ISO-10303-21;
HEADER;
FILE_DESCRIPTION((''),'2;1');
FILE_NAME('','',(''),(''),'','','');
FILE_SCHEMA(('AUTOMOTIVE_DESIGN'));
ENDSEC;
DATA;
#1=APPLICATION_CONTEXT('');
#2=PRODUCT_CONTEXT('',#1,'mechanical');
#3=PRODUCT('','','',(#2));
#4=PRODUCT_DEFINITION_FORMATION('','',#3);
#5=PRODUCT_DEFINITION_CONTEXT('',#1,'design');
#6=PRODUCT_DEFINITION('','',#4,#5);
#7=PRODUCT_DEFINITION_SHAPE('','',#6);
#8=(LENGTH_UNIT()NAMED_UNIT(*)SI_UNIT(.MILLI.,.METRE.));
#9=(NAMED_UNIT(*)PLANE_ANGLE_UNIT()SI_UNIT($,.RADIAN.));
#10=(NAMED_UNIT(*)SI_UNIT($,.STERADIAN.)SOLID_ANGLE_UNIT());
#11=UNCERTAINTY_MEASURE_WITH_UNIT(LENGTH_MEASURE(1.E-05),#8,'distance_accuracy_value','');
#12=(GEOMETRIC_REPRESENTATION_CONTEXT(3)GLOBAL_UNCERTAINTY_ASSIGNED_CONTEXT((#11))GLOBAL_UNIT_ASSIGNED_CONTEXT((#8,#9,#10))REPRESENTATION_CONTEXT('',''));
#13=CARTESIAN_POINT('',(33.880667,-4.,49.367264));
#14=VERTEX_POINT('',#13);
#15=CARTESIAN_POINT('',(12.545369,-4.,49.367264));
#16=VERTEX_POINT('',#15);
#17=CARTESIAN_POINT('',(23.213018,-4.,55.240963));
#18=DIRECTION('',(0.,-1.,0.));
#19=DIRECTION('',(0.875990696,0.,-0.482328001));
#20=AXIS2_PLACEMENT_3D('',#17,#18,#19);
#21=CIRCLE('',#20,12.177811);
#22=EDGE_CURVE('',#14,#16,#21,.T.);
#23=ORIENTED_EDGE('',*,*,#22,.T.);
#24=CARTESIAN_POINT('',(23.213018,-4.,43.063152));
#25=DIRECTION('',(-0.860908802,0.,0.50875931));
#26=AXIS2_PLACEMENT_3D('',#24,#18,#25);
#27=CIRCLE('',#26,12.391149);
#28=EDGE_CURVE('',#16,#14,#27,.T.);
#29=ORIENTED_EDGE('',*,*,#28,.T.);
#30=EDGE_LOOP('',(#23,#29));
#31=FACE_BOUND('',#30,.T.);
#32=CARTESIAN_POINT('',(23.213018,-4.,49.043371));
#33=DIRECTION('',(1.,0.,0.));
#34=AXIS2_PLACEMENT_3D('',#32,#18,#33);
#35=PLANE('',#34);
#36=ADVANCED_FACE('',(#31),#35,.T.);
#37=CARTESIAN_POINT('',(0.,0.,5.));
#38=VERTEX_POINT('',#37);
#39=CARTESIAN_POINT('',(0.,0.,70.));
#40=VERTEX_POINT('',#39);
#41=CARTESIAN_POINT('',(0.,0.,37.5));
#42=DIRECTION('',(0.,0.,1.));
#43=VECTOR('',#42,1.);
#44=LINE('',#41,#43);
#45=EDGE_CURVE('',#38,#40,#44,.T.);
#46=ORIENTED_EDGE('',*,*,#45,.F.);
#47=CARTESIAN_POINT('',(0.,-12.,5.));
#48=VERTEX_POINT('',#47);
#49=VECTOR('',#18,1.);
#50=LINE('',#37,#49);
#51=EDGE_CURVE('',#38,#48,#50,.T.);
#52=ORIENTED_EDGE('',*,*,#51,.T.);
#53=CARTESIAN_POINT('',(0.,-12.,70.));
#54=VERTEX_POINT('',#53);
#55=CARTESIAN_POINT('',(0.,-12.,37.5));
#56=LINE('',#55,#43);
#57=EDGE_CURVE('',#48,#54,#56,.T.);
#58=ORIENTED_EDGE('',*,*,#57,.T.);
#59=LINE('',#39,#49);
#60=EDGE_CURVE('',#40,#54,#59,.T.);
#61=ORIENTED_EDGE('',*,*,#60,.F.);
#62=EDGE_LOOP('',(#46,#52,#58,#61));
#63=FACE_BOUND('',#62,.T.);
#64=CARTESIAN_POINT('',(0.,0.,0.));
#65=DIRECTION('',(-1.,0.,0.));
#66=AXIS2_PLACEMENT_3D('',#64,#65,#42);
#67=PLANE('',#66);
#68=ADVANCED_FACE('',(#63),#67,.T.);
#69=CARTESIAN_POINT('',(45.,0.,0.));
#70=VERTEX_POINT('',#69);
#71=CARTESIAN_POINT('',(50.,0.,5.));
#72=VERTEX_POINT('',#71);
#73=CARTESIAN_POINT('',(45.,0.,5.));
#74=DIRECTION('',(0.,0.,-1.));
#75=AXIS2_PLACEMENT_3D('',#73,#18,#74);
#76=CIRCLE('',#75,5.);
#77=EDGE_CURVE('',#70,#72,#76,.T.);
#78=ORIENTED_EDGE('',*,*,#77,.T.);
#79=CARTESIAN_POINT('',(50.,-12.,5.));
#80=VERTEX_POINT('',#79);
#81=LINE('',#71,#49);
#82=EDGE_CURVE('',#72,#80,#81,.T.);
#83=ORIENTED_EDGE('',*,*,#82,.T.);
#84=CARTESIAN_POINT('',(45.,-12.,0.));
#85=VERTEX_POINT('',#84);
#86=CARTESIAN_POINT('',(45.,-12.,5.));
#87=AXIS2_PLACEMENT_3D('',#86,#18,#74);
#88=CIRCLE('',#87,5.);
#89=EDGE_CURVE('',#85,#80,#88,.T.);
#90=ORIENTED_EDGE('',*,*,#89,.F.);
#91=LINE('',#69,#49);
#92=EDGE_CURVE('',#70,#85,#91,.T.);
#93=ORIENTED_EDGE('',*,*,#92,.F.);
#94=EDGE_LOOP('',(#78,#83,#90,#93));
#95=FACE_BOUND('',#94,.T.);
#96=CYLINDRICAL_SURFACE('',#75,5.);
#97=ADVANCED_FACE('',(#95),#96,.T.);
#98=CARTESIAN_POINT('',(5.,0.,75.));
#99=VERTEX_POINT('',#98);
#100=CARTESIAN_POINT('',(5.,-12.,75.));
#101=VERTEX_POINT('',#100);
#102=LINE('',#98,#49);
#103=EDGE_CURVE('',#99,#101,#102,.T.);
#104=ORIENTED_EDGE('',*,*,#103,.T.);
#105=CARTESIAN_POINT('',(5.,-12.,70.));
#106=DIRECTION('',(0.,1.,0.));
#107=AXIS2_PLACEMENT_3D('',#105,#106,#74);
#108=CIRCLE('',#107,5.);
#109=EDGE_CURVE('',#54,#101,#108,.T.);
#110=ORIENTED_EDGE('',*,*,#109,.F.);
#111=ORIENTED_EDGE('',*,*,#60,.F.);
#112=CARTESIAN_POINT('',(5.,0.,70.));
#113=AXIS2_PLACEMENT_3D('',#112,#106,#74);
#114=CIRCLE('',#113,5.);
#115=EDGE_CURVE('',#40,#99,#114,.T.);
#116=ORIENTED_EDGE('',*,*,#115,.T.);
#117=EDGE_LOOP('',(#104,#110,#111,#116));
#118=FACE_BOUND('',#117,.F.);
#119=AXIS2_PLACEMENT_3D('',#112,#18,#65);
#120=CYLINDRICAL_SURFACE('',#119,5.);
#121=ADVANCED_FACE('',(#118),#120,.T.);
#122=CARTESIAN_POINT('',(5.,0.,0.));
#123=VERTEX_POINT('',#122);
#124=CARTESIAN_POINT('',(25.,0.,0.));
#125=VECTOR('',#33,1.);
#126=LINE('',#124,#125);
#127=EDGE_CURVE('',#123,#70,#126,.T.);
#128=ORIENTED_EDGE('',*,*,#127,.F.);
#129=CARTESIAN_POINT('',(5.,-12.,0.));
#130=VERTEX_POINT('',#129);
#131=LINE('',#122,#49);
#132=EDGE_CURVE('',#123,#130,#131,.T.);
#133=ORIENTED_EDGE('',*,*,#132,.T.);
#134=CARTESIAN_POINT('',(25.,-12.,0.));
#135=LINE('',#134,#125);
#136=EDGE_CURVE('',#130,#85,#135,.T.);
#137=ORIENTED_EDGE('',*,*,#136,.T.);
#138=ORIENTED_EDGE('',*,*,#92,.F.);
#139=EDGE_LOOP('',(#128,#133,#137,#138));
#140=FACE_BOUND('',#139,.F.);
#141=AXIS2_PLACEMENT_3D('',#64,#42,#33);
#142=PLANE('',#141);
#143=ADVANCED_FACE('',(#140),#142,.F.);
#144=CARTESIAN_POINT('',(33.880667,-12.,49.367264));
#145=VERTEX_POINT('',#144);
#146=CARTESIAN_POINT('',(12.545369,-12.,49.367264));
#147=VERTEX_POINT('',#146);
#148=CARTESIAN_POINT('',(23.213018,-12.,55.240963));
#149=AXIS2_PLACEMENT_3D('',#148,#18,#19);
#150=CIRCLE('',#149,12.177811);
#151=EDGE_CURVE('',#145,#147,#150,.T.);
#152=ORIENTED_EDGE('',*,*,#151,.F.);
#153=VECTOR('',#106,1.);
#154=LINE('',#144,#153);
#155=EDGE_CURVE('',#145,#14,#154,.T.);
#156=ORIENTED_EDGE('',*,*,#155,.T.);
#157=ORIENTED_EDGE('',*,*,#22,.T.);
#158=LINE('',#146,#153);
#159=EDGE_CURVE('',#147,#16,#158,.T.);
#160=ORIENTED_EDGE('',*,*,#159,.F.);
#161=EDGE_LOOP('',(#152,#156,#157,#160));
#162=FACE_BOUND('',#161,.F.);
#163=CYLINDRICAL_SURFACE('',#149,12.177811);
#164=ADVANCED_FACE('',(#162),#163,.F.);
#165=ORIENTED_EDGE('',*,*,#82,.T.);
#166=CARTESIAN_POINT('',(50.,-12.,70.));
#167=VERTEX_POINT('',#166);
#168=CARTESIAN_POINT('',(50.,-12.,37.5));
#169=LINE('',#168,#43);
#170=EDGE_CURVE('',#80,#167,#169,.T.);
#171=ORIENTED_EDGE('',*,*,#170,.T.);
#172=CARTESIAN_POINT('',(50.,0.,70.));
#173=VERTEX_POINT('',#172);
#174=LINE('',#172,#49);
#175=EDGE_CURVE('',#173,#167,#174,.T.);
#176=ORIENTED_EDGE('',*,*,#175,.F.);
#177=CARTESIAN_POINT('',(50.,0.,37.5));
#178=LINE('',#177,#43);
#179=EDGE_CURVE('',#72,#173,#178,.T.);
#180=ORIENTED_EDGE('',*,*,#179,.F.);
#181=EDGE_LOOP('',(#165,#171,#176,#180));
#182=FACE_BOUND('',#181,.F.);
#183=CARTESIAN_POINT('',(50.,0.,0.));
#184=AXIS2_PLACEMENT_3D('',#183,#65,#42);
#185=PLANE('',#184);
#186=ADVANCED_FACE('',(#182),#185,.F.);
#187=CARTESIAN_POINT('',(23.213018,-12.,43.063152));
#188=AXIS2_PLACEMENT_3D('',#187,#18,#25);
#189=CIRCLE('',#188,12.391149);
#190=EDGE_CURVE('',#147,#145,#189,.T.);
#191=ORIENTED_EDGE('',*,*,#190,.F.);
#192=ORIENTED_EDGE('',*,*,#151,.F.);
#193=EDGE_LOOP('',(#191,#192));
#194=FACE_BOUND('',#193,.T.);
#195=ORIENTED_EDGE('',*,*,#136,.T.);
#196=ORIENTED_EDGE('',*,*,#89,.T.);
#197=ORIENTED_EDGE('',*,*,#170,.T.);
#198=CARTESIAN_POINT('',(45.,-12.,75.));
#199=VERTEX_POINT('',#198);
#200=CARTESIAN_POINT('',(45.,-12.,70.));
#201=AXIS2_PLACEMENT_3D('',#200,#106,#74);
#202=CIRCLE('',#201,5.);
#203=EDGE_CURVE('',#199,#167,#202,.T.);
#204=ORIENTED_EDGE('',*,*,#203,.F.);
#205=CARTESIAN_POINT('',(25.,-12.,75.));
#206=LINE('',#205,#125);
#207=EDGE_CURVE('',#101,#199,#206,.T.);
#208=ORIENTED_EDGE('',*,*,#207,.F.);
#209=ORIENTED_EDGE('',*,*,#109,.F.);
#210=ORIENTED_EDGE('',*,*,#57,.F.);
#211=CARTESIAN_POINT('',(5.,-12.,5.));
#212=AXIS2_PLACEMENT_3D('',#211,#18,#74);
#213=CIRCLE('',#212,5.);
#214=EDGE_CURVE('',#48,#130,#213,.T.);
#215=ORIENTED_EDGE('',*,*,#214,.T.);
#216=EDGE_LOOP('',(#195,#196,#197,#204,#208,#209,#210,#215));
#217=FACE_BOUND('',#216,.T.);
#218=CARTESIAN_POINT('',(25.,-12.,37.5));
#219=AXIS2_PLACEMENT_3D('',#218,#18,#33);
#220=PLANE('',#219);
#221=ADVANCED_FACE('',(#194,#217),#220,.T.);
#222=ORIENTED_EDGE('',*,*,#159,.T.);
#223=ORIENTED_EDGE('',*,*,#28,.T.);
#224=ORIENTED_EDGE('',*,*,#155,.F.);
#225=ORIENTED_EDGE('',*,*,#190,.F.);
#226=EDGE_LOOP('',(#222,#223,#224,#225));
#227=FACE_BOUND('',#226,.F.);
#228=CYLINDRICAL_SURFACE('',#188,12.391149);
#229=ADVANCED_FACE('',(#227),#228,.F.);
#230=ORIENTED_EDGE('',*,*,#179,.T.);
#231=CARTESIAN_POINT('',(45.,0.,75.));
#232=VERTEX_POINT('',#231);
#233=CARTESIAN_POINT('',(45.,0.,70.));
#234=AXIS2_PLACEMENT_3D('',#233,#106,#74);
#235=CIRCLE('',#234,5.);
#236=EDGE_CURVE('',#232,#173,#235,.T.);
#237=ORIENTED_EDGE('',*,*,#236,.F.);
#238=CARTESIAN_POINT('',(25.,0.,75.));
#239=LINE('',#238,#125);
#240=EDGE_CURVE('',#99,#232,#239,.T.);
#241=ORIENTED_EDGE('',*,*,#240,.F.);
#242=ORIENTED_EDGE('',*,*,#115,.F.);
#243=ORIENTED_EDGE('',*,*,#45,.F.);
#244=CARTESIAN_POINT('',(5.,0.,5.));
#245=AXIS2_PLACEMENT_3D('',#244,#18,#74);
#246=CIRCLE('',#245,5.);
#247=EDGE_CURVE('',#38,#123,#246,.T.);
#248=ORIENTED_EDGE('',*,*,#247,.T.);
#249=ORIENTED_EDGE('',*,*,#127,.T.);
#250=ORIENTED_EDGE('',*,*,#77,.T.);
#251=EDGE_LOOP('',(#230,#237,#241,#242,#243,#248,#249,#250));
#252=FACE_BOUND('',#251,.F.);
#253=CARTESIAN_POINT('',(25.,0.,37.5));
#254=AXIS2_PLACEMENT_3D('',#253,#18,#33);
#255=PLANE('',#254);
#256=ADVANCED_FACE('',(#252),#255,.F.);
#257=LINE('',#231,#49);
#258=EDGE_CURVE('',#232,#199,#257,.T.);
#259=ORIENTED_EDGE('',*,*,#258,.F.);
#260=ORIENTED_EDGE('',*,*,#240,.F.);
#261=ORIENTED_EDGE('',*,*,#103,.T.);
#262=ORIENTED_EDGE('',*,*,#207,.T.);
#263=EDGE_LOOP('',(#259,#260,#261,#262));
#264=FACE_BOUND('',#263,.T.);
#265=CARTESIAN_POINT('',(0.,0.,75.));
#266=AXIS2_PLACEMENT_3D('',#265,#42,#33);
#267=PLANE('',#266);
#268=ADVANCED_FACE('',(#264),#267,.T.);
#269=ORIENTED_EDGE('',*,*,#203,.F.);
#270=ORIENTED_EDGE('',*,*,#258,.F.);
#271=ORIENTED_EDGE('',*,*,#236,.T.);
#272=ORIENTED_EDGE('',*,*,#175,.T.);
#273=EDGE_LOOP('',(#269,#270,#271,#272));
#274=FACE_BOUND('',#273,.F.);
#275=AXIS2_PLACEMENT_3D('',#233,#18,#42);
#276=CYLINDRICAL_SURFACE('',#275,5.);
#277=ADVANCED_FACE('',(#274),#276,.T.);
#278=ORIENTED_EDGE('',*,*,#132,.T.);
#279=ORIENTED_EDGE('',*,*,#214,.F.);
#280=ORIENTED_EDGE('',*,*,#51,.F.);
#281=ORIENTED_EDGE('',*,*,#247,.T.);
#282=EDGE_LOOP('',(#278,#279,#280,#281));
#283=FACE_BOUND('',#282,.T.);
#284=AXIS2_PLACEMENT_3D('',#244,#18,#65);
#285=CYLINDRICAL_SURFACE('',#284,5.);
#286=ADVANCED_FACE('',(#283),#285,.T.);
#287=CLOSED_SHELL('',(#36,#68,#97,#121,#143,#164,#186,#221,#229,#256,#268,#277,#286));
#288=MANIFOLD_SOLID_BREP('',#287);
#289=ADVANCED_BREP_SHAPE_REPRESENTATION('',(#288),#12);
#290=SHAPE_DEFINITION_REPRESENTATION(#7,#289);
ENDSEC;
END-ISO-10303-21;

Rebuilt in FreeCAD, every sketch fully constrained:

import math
import FreeCAD as App
import Part
import Sketcher

V = App.Vector


def edges_at(feature, points):
    """Names of the edges that pass closest to the given points."""
    edges = feature.Shape.Edges
    near = lambda p: min(range(len(edges)), key=lambda i: edges[i].distToShape(Part.Vertex(*p))[0])
    return sorted({f"Edge{near(p) + 1}" for p in points})


def add_polygon(sketch, points):
    """Adds a closed chain of lines whose ends are joined by coincident constraints."""
    first, n = sketch.GeometryCount, len(points)
    for a, b in zip(points, points[1:] + points[:1]):
        sketch.addGeometry(Part.LineSegment(App.Vector(*a, 0), App.Vector(*b, 0)), False)
    for i in range(n):
        sketch.addConstraint(Sketcher.Constraint("Coincident", first + i, 2, first + (i + 1) % n, 1))

doc = App.newDocument("Part")
body = doc.addObject("PartDesign::Body", "Body")

sketch1 = doc.addObject("Sketcher::SketchObject", "Sketch")
body.addObject(sketch1)
sketch1.AttachmentSupport = (doc.XZ_Plane, [""])
sketch1.MapMode = "FlatFace"
add_polygon(sketch1, [(0, 75), (0, 0), (50, 0), (50, 75)])
sketch1.addConstraint([
    Sketcher.Constraint("Vertical", 0),
    Sketcher.Constraint("Horizontal", 1),
    Sketcher.Constraint("Vertical", 2),
    Sketcher.Constraint("Horizontal", 3),
    Sketcher.Constraint("Coincident", 0, 2, -1, 1),
    Sketcher.Constraint("DistanceX", 1, 1, 1, 2, 50.0),
    Sketcher.Constraint("DistanceY", 0, 2, 0, 1, 75.0),
])
pad1 = doc.addObject("PartDesign::Pad", "Pad")
body.addObject(pad1)
pad1.Profile = sketch1
pad1.Length = 12

sketch2 = doc.addObject("Sketcher::SketchObject", "Sketch001")
body.addObject(sketch2)
sketch2.AttachmentSupport = (doc.XZ_Plane, [""])
sketch2.MapMode = "FlatFace"
sketch2.AttachmentOffset = App.Placement(V(0, 0, 12), App.Rotation())
sketch2.addGeometry([
    Part.ArcOfCircle(Part.Circle(V(23, 43, 0), V(0, 0, 1), 12), math.radians(149), math.radians(391)),
    Part.ArcOfCircle(Part.Circle(V(23, 55, 0), V(0, 0, 1), 12), math.radians(-29), math.radians(209)),
], False)
sketch2.addConstraint([
    Sketcher.Constraint("Coincident", 0, 1, 1, 2),
    Sketcher.Constraint("Coincident", 1, 1, 0, 2),
    Sketcher.Constraint("Horizontal", 0, 1, 1, 1),
    Sketcher.Constraint("Radius", 0, 12.391149),
    Sketcher.Constraint("Radius", 1, 12.177811),
    Sketcher.Constraint("DistanceY", 0, 1, 1, 3, 5.873699),
    Sketcher.Constraint("DistanceX", -1, 1, 0, 3, 23.213018),
    Sketcher.Constraint("DistanceY", -1, 1, 0, 3, 43.063152),
])
pocket1 = doc.addObject("PartDesign::Pocket", "Pocket")
body.addObject(pocket1)
pocket1.Profile = sketch2
pocket1.Length = 8
doc.recompute()

fillet = doc.addObject("PartDesign::Fillet", "Fillet")
body.addObject(fillet)
fillet.Base = (pocket1, edges_at(pocket1, [
    (50, -6, 0),
    (50, -6, 75),
    (0, -6, 75),
    (0, -6, 0),
]))
fillet.Radius = 5

doc.recompute()
